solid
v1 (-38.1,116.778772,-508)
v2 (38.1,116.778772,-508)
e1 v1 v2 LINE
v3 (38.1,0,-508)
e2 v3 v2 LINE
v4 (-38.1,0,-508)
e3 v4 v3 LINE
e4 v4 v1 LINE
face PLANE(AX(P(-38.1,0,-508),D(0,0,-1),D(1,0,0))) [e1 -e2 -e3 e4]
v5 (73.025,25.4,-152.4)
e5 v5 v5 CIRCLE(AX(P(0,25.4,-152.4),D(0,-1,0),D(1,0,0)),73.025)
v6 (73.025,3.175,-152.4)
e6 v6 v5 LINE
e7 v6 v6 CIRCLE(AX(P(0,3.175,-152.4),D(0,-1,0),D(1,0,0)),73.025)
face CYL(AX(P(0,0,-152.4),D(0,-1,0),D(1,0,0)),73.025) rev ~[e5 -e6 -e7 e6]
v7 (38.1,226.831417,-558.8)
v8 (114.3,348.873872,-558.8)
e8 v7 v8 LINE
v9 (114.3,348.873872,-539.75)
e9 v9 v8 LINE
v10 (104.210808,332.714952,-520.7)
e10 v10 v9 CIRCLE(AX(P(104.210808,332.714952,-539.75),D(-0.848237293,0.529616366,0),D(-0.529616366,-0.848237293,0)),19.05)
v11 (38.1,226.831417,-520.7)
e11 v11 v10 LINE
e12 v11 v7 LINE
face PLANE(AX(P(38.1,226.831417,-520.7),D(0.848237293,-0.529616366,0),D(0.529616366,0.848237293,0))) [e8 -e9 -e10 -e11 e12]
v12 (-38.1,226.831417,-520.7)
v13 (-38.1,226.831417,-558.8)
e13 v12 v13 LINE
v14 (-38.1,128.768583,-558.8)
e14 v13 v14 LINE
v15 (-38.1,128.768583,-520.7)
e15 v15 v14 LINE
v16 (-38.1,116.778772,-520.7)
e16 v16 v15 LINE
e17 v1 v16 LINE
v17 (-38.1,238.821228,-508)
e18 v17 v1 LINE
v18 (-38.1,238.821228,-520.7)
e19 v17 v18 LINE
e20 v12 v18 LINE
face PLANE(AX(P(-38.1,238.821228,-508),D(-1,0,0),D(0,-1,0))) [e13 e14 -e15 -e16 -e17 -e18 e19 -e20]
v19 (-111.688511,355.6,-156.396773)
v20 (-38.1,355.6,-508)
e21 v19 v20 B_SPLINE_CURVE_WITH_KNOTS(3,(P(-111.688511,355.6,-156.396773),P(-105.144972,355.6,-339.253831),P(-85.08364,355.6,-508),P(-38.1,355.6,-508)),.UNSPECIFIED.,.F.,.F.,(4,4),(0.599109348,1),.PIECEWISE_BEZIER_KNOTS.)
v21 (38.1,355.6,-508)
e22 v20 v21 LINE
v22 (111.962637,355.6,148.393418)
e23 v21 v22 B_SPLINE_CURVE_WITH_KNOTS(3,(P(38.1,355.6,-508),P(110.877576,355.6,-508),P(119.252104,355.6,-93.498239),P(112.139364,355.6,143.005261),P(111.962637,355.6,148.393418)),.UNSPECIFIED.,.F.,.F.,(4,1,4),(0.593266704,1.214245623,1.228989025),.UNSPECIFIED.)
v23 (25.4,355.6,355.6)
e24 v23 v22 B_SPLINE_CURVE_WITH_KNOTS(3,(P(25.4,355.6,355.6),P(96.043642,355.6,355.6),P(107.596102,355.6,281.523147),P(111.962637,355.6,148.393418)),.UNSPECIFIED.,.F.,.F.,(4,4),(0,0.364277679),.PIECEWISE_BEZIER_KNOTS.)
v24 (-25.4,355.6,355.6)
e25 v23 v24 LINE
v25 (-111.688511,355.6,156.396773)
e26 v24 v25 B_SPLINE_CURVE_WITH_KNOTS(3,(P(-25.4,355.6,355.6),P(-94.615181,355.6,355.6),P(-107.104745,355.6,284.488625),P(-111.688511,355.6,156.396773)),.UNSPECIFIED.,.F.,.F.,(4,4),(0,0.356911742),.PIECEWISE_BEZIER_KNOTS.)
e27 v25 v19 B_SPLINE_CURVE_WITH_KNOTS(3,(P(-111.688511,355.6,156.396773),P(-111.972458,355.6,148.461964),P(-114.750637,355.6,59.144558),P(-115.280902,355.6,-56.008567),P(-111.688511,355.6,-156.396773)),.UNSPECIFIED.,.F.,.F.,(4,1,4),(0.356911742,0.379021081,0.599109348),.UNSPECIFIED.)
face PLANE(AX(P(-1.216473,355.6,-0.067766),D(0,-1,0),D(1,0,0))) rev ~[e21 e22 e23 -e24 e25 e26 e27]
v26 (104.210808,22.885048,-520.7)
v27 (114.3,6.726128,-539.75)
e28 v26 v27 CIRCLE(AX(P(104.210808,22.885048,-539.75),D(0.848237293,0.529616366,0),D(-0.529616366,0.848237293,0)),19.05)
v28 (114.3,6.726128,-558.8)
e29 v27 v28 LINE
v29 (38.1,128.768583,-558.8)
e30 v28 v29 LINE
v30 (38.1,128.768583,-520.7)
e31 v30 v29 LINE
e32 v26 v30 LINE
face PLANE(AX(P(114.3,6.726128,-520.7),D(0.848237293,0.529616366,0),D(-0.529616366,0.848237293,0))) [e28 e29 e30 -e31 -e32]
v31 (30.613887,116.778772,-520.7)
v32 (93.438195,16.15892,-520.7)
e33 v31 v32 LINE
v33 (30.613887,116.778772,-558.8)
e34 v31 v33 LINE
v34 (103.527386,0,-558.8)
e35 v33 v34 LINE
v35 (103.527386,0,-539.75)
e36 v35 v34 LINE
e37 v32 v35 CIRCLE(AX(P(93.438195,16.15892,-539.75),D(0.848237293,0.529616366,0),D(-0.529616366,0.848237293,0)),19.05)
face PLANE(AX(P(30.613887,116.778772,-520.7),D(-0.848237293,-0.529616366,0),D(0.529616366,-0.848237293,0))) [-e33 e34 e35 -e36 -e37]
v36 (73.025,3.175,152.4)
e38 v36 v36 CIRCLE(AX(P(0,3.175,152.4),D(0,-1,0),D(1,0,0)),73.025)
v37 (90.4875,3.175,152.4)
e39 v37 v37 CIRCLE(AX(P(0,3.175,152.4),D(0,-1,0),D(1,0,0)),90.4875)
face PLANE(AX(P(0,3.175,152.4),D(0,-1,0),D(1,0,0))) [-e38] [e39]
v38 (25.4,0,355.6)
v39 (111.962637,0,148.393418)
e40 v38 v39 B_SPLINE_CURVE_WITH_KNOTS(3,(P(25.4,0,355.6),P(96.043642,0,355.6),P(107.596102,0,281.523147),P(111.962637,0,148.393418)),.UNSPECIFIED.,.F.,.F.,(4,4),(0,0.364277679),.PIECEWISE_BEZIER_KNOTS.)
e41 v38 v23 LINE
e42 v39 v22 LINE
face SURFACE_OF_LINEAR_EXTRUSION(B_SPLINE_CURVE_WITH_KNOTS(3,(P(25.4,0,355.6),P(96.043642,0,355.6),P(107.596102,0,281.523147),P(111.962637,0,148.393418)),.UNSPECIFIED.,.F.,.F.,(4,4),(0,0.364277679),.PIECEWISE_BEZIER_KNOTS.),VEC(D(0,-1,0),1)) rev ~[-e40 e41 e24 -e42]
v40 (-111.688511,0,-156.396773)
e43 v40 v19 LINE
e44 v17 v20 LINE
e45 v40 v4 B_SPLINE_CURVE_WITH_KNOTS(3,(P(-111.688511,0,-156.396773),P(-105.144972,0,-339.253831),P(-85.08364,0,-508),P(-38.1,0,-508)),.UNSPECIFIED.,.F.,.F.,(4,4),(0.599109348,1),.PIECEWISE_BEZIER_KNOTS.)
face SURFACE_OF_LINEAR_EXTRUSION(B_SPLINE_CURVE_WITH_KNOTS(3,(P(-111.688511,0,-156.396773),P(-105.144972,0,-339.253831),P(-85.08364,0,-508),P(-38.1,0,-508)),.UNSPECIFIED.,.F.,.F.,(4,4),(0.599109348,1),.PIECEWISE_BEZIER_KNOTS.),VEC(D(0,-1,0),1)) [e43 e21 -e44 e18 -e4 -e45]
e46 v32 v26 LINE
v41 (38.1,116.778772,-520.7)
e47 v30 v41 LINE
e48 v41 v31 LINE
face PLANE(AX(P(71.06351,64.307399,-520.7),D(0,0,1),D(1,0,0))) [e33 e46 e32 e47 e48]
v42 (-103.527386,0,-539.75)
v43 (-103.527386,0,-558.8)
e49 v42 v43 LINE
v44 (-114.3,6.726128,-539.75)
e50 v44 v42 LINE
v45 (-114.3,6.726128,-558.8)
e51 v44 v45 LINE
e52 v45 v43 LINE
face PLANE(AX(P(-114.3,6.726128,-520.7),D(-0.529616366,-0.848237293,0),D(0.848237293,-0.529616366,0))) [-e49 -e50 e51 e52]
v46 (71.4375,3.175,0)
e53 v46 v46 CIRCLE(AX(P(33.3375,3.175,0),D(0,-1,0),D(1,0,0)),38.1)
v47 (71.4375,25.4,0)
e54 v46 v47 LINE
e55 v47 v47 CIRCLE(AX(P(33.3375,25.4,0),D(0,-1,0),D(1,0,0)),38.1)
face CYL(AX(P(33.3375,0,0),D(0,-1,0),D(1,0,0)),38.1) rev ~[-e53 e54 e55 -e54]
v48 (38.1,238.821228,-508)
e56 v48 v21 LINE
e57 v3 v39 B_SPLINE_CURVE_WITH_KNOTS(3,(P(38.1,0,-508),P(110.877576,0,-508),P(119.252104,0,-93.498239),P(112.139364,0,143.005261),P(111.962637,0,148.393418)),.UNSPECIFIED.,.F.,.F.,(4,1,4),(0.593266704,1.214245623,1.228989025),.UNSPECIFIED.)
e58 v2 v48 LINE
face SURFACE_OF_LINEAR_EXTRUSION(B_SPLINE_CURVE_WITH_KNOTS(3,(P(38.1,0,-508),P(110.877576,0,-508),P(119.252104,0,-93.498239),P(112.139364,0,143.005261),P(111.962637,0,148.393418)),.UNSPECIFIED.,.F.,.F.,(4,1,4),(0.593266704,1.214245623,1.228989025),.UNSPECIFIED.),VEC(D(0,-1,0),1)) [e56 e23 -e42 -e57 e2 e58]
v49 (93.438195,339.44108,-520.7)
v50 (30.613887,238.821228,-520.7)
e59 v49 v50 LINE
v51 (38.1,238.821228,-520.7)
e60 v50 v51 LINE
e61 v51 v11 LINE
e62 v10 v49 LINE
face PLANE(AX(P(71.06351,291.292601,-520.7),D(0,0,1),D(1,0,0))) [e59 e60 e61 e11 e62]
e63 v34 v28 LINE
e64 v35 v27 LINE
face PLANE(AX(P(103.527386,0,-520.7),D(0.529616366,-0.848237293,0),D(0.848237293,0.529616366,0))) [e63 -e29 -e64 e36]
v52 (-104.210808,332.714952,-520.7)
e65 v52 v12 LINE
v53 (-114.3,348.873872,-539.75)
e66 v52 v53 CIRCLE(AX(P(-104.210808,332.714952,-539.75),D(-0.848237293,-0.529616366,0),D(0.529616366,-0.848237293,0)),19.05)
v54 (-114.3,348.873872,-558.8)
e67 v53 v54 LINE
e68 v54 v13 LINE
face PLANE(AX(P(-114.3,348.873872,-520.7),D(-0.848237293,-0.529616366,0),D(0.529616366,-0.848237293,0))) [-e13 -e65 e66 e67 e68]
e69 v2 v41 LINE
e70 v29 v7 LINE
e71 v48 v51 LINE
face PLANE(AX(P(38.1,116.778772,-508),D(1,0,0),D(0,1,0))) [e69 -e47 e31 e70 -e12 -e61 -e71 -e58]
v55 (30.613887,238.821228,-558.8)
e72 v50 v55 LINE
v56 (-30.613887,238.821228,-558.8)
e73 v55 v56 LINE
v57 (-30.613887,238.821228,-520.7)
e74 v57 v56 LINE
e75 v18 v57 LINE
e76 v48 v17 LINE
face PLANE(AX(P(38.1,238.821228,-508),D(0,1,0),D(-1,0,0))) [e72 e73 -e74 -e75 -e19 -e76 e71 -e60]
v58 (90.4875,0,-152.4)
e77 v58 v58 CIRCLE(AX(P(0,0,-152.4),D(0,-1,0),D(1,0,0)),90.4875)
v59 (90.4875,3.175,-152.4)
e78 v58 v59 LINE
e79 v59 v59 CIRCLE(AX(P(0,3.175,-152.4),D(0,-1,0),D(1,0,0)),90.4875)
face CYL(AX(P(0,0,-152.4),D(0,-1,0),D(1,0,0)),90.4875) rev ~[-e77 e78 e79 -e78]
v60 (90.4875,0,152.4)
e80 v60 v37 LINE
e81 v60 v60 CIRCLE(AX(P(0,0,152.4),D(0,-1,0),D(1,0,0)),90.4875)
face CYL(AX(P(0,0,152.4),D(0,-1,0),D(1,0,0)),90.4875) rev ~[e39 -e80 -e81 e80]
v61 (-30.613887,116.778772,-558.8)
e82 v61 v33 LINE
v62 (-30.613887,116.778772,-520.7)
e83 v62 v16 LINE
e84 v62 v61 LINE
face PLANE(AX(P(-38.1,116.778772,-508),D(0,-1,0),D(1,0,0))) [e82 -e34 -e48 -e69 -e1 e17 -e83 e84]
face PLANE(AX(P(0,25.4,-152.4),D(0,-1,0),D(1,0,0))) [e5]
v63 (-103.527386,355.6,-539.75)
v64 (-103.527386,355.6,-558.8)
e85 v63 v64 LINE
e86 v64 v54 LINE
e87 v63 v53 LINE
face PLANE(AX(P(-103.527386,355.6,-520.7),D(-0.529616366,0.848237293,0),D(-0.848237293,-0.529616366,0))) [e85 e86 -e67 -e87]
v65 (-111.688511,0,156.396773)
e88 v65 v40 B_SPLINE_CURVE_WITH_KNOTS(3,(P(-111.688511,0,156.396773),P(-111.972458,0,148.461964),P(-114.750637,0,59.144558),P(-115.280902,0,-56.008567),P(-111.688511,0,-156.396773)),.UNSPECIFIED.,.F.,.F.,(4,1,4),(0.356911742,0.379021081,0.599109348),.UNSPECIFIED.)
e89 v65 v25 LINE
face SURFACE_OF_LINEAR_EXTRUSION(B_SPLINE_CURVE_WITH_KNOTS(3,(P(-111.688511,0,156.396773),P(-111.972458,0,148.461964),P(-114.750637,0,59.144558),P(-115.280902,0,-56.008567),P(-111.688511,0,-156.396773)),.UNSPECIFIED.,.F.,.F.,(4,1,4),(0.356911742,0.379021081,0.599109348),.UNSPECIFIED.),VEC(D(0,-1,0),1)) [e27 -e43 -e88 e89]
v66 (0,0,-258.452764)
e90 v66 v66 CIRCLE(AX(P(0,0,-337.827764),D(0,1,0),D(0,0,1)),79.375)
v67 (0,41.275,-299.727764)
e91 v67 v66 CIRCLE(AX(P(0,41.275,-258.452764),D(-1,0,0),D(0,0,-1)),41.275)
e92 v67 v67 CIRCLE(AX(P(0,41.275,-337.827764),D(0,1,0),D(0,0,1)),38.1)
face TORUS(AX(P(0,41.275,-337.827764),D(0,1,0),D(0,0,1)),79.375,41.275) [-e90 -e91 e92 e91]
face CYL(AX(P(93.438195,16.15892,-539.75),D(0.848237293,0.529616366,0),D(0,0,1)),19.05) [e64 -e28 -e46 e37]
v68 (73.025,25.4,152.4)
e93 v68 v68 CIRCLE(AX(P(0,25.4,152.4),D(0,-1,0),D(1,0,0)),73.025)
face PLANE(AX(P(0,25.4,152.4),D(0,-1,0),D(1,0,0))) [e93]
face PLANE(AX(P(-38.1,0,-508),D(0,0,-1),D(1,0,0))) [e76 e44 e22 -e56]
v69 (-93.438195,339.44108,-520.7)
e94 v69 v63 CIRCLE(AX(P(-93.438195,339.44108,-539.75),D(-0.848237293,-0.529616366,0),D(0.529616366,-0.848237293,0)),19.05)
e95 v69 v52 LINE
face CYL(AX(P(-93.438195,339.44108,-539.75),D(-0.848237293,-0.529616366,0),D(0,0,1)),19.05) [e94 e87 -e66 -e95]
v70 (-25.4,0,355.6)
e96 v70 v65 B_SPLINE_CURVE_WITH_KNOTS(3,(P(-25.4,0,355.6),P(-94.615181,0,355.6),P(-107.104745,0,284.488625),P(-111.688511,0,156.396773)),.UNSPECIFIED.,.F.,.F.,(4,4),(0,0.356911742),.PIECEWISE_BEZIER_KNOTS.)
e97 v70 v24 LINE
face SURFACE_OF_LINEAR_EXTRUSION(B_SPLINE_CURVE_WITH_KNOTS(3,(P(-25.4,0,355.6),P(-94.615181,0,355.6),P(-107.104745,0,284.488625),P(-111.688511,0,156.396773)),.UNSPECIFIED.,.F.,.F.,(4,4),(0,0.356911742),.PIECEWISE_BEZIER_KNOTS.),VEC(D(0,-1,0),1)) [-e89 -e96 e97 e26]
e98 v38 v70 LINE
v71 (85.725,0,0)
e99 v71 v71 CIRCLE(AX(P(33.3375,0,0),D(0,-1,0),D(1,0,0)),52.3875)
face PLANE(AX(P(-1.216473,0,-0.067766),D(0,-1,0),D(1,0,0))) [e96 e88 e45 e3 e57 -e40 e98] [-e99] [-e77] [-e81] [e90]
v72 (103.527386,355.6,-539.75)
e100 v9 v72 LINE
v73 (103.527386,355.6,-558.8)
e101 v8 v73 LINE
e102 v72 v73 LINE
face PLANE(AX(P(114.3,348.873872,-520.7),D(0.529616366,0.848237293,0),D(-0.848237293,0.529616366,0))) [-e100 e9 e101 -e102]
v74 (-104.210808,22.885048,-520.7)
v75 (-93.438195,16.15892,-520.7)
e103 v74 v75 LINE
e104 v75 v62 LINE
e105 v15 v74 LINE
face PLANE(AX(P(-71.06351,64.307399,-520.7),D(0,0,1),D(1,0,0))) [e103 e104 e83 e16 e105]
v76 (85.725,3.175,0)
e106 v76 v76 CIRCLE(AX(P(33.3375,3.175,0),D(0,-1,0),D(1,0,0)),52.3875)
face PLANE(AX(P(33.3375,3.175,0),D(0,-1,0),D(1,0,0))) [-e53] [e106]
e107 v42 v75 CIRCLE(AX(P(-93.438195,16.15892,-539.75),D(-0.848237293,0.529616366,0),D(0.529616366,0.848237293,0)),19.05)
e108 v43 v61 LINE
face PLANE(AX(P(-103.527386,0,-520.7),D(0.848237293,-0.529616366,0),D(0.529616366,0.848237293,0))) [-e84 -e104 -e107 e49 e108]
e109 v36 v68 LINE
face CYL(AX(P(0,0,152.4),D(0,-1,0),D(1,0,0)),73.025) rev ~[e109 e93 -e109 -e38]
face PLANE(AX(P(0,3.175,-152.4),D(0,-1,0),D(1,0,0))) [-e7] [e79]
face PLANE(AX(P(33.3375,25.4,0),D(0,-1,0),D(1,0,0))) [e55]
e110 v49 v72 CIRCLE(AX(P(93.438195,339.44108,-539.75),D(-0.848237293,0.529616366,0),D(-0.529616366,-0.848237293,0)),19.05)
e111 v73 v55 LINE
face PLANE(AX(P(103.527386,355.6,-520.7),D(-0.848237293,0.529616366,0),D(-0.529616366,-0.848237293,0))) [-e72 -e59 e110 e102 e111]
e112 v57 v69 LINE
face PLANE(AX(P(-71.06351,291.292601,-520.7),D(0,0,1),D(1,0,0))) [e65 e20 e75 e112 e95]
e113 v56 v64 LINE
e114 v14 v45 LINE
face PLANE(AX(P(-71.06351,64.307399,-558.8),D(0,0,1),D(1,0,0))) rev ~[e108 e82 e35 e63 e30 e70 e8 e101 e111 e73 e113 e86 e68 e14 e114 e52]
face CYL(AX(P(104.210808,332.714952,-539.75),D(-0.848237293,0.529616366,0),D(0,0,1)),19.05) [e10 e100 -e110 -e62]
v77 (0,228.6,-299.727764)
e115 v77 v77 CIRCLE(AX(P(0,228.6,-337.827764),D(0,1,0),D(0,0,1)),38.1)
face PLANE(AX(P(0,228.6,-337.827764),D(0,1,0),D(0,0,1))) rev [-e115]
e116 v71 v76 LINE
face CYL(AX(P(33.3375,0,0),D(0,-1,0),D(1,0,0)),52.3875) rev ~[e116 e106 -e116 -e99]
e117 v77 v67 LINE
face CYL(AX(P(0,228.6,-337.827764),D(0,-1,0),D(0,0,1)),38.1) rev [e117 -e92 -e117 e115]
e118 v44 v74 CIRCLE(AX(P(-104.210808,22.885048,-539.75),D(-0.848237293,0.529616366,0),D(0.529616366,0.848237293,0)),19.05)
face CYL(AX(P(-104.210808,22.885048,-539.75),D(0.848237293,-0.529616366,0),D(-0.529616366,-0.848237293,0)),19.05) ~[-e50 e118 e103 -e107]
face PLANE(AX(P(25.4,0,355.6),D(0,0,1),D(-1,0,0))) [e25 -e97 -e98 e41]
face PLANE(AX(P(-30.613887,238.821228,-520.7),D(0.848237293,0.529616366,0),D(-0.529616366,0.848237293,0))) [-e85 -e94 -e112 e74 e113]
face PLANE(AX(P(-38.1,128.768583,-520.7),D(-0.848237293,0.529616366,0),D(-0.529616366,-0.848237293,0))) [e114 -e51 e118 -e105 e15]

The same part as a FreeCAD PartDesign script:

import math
import FreeCAD as App
import Part
import Sketcher
from FreeCAD import Vector
Q = App.Units.Quantity


def edges_at(feature, points):
    """Names of the edges that pass closest to the given points."""
    edges = feature.Shape.Edges
    near = lambda p: min(range(len(edges)), key=lambda i: edges[i].distToShape(Part.Vertex(*p))[0])
    return sorted({f"Edge{near(p) + 1}" for p in points})


def add_polygon(sketch, points):
    """Adds a closed chain of lines whose ends are joined by coincident constraints."""
    first, n = sketch.GeometryCount, len(points)
    for a, b in zip(points, points[1:] + points[:1]):
        sketch.addGeometry(Part.LineSegment(App.Vector(*a, 0), App.Vector(*b, 0)), False)
    for i in range(n):
        sketch.addConstraint(Sketcher.Constraint("Coincident", first + i, 2, first + (i + 1) % n, 1))

doc = App.newDocument("Part")
params = doc.addObject("Spreadsheet::Sheet", "Params")
for row, (alias, value) in enumerate([
    ("pad1_length", "14 in"),
    ("sketch2_diameter", "3 in"),
    ("sketch2_diameter2", "5.75 in"),
    ("sketch2_diameter3", "7.125 in"),
    ("sketch2_diameter4", "4.125 in"),
    ("pocket1_length", "0.125 in"),
    ("sketch3_diameter", "3 in"),
    ("sketch3_diameter2", "5.75 in"),
    ("pocket2_length", "1 in"),
    ("sketch4_width", "9 in"),
    ("sketch4_height", "1.5 in"),
    ("sketch4_radius", "1.625 in"),
    ("groove_angle", "360 deg"),
    ("sketch5_width", "3 in"),
    ("pad2_length", "2 in"),
    ("sketch6_length", "0.5 in"),
    ("pad3_length", "1.5 in"),
    ("fillet_radius", "0.75 in"),
], start=1):
    params.set(f"A{row}", alias)
    params.set(f"B{row}", "=" + value)
    params.setAlias(f"B{row}", alias)

body = doc.addObject("PartDesign::Body", "Body")

# Sketch on XZ plane
sketch1 = body.newObject("Sketcher::SketchObject", "Sketch")
sketch1.AttachmentSupport = (doc.getObject("XZ_Plane"), [""])
sketch1.MapMode = "FlatFace"
sketch1.addGeometry([
    Part.LineSegment(Vector(-38.1, -508, 0), Vector(38.1, -508, 0)),  # 0
    Part.BSplineCurve([Vector(38.1, -508, 0), Vector(110.877576, -508, 0), Vector(119.252104, -93.498239, 0), Vector(112.139364, 143.005261, 0), Vector(111.962637, 148.393418, 0)], [4, 1, 4], [0.593266704, 1.214245623, 1.228989025], False, 3, [1, 1, 1, 1, 1], False),  # 1
    Part.BSplineCurve([Vector(25.4, 355.6, 0), Vector(96.043642, 355.6, 0), Vector(107.596102, 281.523147, 0), Vector(111.962637, 148.393418, 0)], [4, 4], [0, 0.364277679], False, 3, [1, 1, 1, 1], False),  # 2
    Part.LineSegment(Vector(25.4, 355.6, 0), Vector(-25.4, 355.6, 0)),  # 3
    Part.BSplineCurve([Vector(-25.4, 355.6, 0), Vector(-94.615181, 355.6, 0), Vector(-107.104745, 284.488625, 0), Vector(-111.688511, 156.396773, 0)], [4, 4], [0, 0.356911742], False, 3, [1, 1, 1, 1], False),  # 4
    Part.BSplineCurve([Vector(-111.688511, 156.396773, 0), Vector(-111.972458, 148.461964, 0), Vector(-114.750637, 59.144558, 0), Vector(-115.280902, -56.008567, 0), Vector(-111.688511, -156.396773, 0)], [4, 1, 4], [0.356911742, 0.379021081, 0.599109348], False, 3, [1, 1, 1, 1, 1], False),  # 5
    Part.BSplineCurve([Vector(-111.688511, -156.396773, 0), Vector(-105.144972, -339.253831, 0), Vector(-85.08364, -508, 0), Vector(-38.1, -508, 0)], [4, 4], [0.599109348, 1], False, 3, [1, 1, 1, 1], False),  # 6
], False)
sketch1.addConstraint([
    Sketcher.Constraint("Block", 1),
    Sketcher.Constraint("Block", 2),
    Sketcher.Constraint("Block", 4),
    Sketcher.Constraint("Block", 5),
    Sketcher.Constraint("Block", 6),
    Sketcher.Constraint("Coincident", 0, 2, 1, 1),
    Sketcher.Constraint("Coincident", 2, 1, 3, 1),
    Sketcher.Constraint("Coincident", 3, 2, 4, 1),
    Sketcher.Constraint("Coincident", 6, 2, 0, 1),
])
pad1 = body.newObject("PartDesign::Pad", "Pad")
pad1.Profile = sketch1
pad1.setExpression("Length", "Params.pad1_length")
pad1.Reversed = True

# Sketch on XZ plane
sketch2 = body.newObject("Sketcher::SketchObject", "Sketch001")
sketch2.AttachmentSupport = (doc.getObject("XZ_Plane"), [""])
sketch2.MapMode = "FlatFace"
sketch2.addGeometry([
    Part.Circle(Vector(0, 152.4, 0), Vector(0, 0, 1), 90.4875),  # 0
    Part.Circle(Vector(0, 152.4, 0), Vector(0, 0, 1), 73.025),  # 1
    Part.Circle(Vector(33.3375, 0, 0), Vector(0, 0, 1), 52.3875),  # 2
    Part.Circle(Vector(33.3375, 0, 0), Vector(0, 0, 1), 38.1),  # 3
    Part.Circle(Vector(0, -152.4, 0), Vector(0, 0, 1), 90.4875),  # 4
    Part.Circle(Vector(0, -152.4, 0), Vector(0, 0, 1), 73.025),  # 5
], False)
sketch2.addConstraint([
    Sketcher.Constraint("Coincident", 1, 3, 0, 3),
    Sketcher.Constraint("Coincident", 3, 3, 2, 3),
    Sketcher.Constraint("Coincident", 5, 3, 4, 3),
    Sketcher.Constraint("Equal", 0, 4),
    Sketcher.Constraint("Equal", 1, 5),
    Sketcher.Constraint("Symmetric", 0, 3, 4, 3, -1, 1),
    Sketcher.Constraint("PointOnObject", 0, 3, -2),
    Sketcher.Constraint("PointOnObject", 2, 3, -1),
    Sketcher.Constraint("Diameter", 3, Q("3 in")),
    Sketcher.Constraint("Diameter", 1, Q("5.75 in")),
    Sketcher.Constraint("Diameter", 0, Q("7.125 in")),
    Sketcher.Constraint("Diameter", 2, Q("4.125 in")),
    Sketcher.Constraint("DistanceY", -1, 1, 0, 3, Q("6 in")),
    Sketcher.Constraint("DistanceX", -1, 1, 2, 3, Q("1.3125 in")),
])
sketch2.setExpression("Constraints[8]", "Params.sketch2_diameter")
sketch2.setExpression("Constraints[9]", "Params.sketch2_diameter2")
sketch2.setExpression("Constraints[10]", "Params.sketch2_diameter3")
sketch2.setExpression("Constraints[11]", "Params.sketch2_diameter4")
pocket1 = body.newObject("PartDesign::Pocket", "Pocket")
pocket1.Profile = sketch2
pocket1.setExpression("Length", "Params.pocket1_length")

# Sketch on XZ plane
sketch3 = body.newObject("Sketcher::SketchObject", "Sketch002")
sketch3.AttachmentSupport = (doc.getObject("XZ_Plane"), [""])
sketch3.MapMode = "FlatFace"
sketch3.addGeometry([
    Part.Circle(Vector(0, 152.4, 0), Vector(0, 0, 1), 73.025),
    Part.Circle(Vector(33.3375, 0, 0), Vector(0, 0, 1), 38.1),
    Part.Circle(Vector(0, -152.4, 0), Vector(0, 0, 1), 73.025),
], False)
sketch3.addConstraint([
    Sketcher.Constraint("Equal", 0, 2),
    Sketcher.Constraint("Symmetric", 0, 3, 2, 3, -1, 1),
    Sketcher.Constraint("PointOnObject", 0, 3, -2),
    Sketcher.Constraint("PointOnObject", 1, 3, -1),
    Sketcher.Constraint("Diameter", 1, Q("3 in")),
    Sketcher.Constraint("Diameter", 0, Q("5.75 in")),
    Sketcher.Constraint("DistanceY", -1, 1, 0, 3, Q("6 in")),
    Sketcher.Constraint("DistanceX", -1, 1, 1, 3, Q("1.3125 in")),
])
sketch3.setExpression("Constraints[4]", "Params.sketch3_diameter")
sketch3.setExpression("Constraints[5]", "Params.sketch3_diameter2")
pocket2 = body.newObject("PartDesign::Pocket", "Pocket001")
pocket2.Profile = sketch3
pocket2.setExpression("Length", "Params.pocket2_length")

# Sketch on YZ plane
sketch4 = body.newObject("Sketcher::SketchObject", "Sketch003")
sketch4.AttachmentSupport = (doc.getObject("YZ_Plane"), [""])
sketch4.MapMode = "FlatFace"
sketch4.addGeometry([
    Part.LineSegment(Vector(0, -258.452764, 0), Vector(0, -337.827764, 0)),  # 0
    Part.LineSegment(Vector(0, -337.827764, 0), Vector(228.6, -337.827764, 0)),  # 1
    Part.LineSegment(Vector(228.6, -337.827764, 0), Vector(228.6, -299.727764, 0)),  # 2
    Part.LineSegment(Vector(228.6, -299.727764, 0), Vector(41.275, -299.727764, 0)),  # 3
    Part.ArcOfCircle(Part.Circle(Vector(41.275, -258.452764, 0), Vector(0, 0, 1), 41.275), math.radians(180), math.radians(270)),  # 4
], False)
sketch4.addGeometry(Part.LineSegment(Vector(0, -337.827764, 0), Vector(228.6, -337.827764, 0)), True)  # axis
sketch4.addConstraint([
    Sketcher.Constraint("Coincident", 0, 2, 1, 1),
    Sketcher.Constraint("Coincident", 1, 2, 2, 1),
    Sketcher.Constraint("Coincident", 2, 2, 3, 1),
    Sketcher.Constraint("Tangent", 3, 2, 4, 2),
    Sketcher.Constraint("Tangent", 4, 1, 0, 1),
    Sketcher.Constraint("Vertical", 0),
    Sketcher.Constraint("Horizontal", 1),
    Sketcher.Constraint("Vertical", 2),
    Sketcher.Constraint("Horizontal", 3),
    Sketcher.Constraint("Horizontal", 5),
    Sketcher.Constraint("Coincident", 5, 1, 0, 2),
    Sketcher.Constraint("PointOnObject", 0, 2, -2),
    Sketcher.Constraint("Vertical", 2, 2, 5, 2),
    Sketcher.Constraint("DistanceX", 1, 1, 1, 2, Q("9 in")),
    Sketcher.Constraint("DistanceY", 2, 1, 2, 2, Q("1.5 in")),
    Sketcher.Constraint("Radius", 4, Q("1.625 in")),
    Sketcher.Constraint("DistanceY", 4, 3, -1, 1, Q("258.452764 mm")),
])
sketch4.setExpression("Constraints[13]", "Params.sketch4_width")
sketch4.setExpression("Constraints[14]", "Params.sketch4_height")
sketch4.setExpression("Constraints[15]", "Params.sketch4_radius")
groove = body.newObject("PartDesign::Groove", "Groove")
groove.Profile = sketch4
groove.ReferenceAxis = (sketch4, ["Axis0"])
groove.setExpression("Angle", "Params.groove_angle")

# Sketch on XY plane
sketch5 = body.newObject("Sketcher::SketchObject", "Sketch004")
sketch5.AttachmentSupport = (doc.getObject("XY_Plane"), [""])
sketch5.MapMode = "FlatFace"
sketch5.AttachmentOffset = App.Placement(Vector(0, 0, -20 * 25.4), App.Rotation())
add_polygon(sketch5, [(38.1, 238.821228), (-38.1, 238.821228), (-38.1, 116.778772), (38.1, 116.778772)])  # lines 0-3
sketch5.addConstraint([
    Sketcher.Constraint("Horizontal", 0),
    Sketcher.Constraint("Vertical", 1),
    Sketcher.Constraint("Horizontal", 2),
    Sketcher.Constraint("Vertical", 3),
    Sketcher.Constraint("DistanceX", 0, 2, 0, 1, Q("3 in")),
    Sketcher.Constraint("DistanceX", 0, 2, -1, 1, Q("1.5 in")),
    Sketcher.Constraint("DistanceY", 1, 2, 1, 1, Q("122.042455 mm")),
    Sketcher.Constraint("DistanceY", -1, 1, 0, 2, Q("238.821228 mm")),
])
sketch5.setExpression("Constraints[8]", "Params.sketch5_width")
pad2 = body.newObject("PartDesign::Pad", "Pad001")
pad2.Profile = sketch5
pad2.setExpression("Length", "Params.pad2_length")
pad2.Reversed = True

# Sketch on XY plane
sketch6 = body.newObject("Sketcher::SketchObject", "Sketch005")
sketch6.AttachmentSupport = (doc.getObject("XY_Plane"), [""])
sketch6.MapMode = "FlatFace"
sketch6.AttachmentOffset = App.Placement(Vector(0, 0, -20.5 * 25.4), App.Rotation())
add_polygon(sketch6, [(-114.3, 6.726128), (-103.527386, 0), (-30.613887, 116.778772), (-38.1, 116.778772), (-38.1, 128.768583)])  # lines 0-4
add_polygon(sketch6, [(30.613887, 116.778772), (103.527386, 0), (114.3, 6.726128), (38.1, 128.768583), (38.1, 116.778772)])  # lines 5-9
add_polygon(sketch6, [(38.1, 226.831417), (114.3, 348.873872), (103.527386, 355.6), (30.613887, 238.821228), (38.1, 238.821228)])  # lines 10-14
add_polygon(sketch6, [(-103.527386, 355.6), (-114.3, 348.873872), (-38.1, 226.831417), (-38.1, 238.821228), (-30.613887, 238.821228)])  # lines 15-19
sketch6.addConstraint([
    Sketcher.Constraint("Horizontal", 2),
    Sketcher.Constraint("Vertical", 3),
    Sketcher.Constraint("Vertical", 8),
    Sketcher.Constraint("Horizontal", 9),
    Sketcher.Constraint("Horizontal", 13),
    Sketcher.Constraint("Vertical", 14),
    Sketcher.Constraint("Vertical", 17),
    Sketcher.Constraint("Horizontal", 18),
    Sketcher.Constraint("Symmetric", 0, 2, 5, 2, -1, 1),
    Sketcher.Constraint("Symmetric", 4, 2, 6, 2, -2),
    Sketcher.Constraint("Symmetric", 3, 2, 7, 2, -2),
    Sketcher.Constraint("Symmetric", 1, 2, 9, 2, -2),
    Sketcher.Constraint("Symmetric", 10, 2, 15, 2, -2),
    Sketcher.Constraint("Symmetric", 14, 2, 16, 2, -2),
    Sketcher.Constraint("Symmetric", 12, 2, 18, 2, -2),
    Sketcher.Constraint("Symmetric", 11, 2, 19, 2, -2),
    Sketcher.Constraint("PointOnObject", 0, 2, -1),
    Sketcher.Constraint("Perpendicular", 0, 1),
    Sketcher.Constraint("Parallel", 1, 4),
    Sketcher.Constraint("Parallel", 4, 10),
    Sketcher.Constraint("Perpendicular", 10, 11),
    Sketcher.Constraint("Perpendicular", 11, 12),
    Sketcher.Constraint("Vertical", 6, 2, 10, 2),
    Sketcher.Constraint("Vertical", 5, 2, 11, 2),
    Sketcher.Constraint("Vertical", 9, 2, 12, 2),
    Sketcher.Constraint("Vertical", 8, 2, 13, 2),
    Sketcher.Constraint("DistanceY", -1, 1, 11, 2, Q("14 in")),
    Sketcher.Constraint("DistanceX", 4, 2, 2, 2, Q("3 in")),
    Sketcher.Constraint("DistanceX", 2, 2, 6, 2, Q("6 in")),
    Sketcher.Constraint("Distance", 0, Q("0.5 in")),
    Sketcher.Constraint("DistanceY", 3, 1, 3, 2, Q("11.989811 mm")),
    Sketcher.Constraint("DistanceY", 8, 2, 10, 2, Q("232.0951 mm")),
])
sketch6.setExpression("Constraints[49]", "Params.sketch6_length")
pad3 = body.newObject("PartDesign::Pad", "Pad002")
pad3.Profile = sketch6
pad3.setExpression("Length", "Params.pad3_length")
pad3.Reversed = True
doc.recompute()

fillet = body.newObject("PartDesign::Fillet", "Fillet")
fillet.Base = (pad3, edges_at(pad3, [
    (-108.914, 3.363, -520.7),
    (108.914, 352.237, -520.7),
    (108.914, 3.363, -520.7),
    (-108.914, 352.237, -520.7),
]))
fillet.setExpression("Radius", "Params.fillet_radius")

doc.recompute()
